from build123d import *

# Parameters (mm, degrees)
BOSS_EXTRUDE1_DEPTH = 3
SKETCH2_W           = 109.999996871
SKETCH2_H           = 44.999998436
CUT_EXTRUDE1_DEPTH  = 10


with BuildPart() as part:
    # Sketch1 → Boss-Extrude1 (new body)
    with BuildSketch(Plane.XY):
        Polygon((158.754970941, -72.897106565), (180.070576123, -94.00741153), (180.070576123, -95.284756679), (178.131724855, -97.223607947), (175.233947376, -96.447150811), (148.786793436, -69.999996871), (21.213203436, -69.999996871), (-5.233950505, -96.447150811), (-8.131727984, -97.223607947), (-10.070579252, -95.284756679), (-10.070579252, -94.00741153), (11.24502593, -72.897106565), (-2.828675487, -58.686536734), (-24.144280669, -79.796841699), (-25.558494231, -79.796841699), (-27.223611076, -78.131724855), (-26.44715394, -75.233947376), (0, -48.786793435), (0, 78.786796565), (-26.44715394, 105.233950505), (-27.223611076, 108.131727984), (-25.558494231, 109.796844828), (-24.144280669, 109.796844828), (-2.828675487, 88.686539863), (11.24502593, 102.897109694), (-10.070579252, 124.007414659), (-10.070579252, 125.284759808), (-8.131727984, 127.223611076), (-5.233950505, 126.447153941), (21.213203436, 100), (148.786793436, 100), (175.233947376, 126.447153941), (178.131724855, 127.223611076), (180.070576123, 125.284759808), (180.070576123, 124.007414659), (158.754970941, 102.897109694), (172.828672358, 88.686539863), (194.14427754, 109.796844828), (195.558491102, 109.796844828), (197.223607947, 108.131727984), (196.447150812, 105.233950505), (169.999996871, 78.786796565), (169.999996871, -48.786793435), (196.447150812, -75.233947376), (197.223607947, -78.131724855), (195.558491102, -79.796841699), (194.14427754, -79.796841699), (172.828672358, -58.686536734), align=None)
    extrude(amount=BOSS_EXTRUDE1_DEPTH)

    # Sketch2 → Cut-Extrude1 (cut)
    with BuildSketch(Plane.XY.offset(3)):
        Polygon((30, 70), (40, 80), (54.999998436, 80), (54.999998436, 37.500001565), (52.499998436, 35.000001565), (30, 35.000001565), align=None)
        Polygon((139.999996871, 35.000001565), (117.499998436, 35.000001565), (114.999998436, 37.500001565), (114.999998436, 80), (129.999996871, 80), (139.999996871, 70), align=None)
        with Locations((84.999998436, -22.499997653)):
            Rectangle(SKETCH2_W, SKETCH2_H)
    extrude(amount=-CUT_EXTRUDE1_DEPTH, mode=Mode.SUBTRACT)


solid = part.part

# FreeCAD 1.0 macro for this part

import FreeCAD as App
import Part
import Sketcher
Q = App.Units.Quantity


def add_polygon(sketch, points):
    """Adds a closed chain of lines whose ends are joined by coincident constraints."""
    first, n = sketch.GeometryCount, len(points)
    for a, b in zip(points, points[1:] + points[:1]):
        sketch.addGeometry(Part.LineSegment(App.Vector(*a, 0), App.Vector(*b, 0)), False)
    for i in range(n):
        sketch.addConstraint(Sketcher.Constraint("Coincident", first + i, 2, first + (i + 1) % n, 1))

doc = App.newDocument("Part")
body = doc.addObject("PartDesign::Body", "Body")

# Sketch on XY plane
sketch1 = body.newObject("Sketcher::SketchObject", "Sketch")
sketch1.AttachmentSupport = (doc.getObject("XY_Plane"), [""])
sketch1.MapMode = "FlatFace"
add_polygon(sketch1, [(180.070576, -94.007412), (158.754971, -72.897107), (172.828672, -58.686537), (194.144278, -79.796842), (195.558491, -79.796842), (197.223608, -78.131725), (196.447151, -75.233947), (169.999997, -48.786793), (169.999997, 78.786797), (196.447151, 105.233951), (197.223608, 108.131728), (195.558491, 109.796845), (194.144278, 109.796845), (172.828672, 88.68654), (158.754971, 102.89711), (180.070576, 124.007415), (180.070576, 125.28476), (178.131725, 127.223611), (175.233947, 126.447154), (148.786793, 100), (21.213203, 100), (-5.233951, 126.447154), (-8.131728, 127.223611), (-10.070579, 125.28476), (-10.070579, 124.007415), (11.245026, 102.89711), (-2.828675, 88.68654), (-24.144281, 109.796845), (-25.558494, 109.796845), (-27.223611, 108.131728), (-26.447154, 105.233951), (0, 78.786797), (0, -48.786793), (-26.447154, -75.233947), (-27.223611, -78.131725), (-25.558494, -79.796842), (-24.144281, -79.796842), (-2.828675, -58.686537), (11.245026, -72.897107), (-10.070579, -94.007412), (-10.070579, -95.284757), (-8.131728, -97.223608), (-5.233951, -96.447151), (21.213203, -69.999997), (148.786793, -69.999997), (175.233947, -96.447151), (178.131725, -97.223608), (180.070576, -95.284757)])  # lines 0-47
sketch1.addConstraint([
    Sketcher.Constraint("Horizontal", 3),
    Sketcher.Constraint("Vertical", 7),
    Sketcher.Constraint("Horizontal", 11),
    Sketcher.Constraint("Vertical", 15),
    Sketcher.Constraint("Horizontal", 19),
    Sketcher.Constraint("Vertical", 23),
    Sketcher.Constraint("Horizontal", 27),
    Sketcher.Constraint("Vertical", 31),
    Sketcher.Constraint("Horizontal", 35),
    Sketcher.Constraint("Vertical", 39),
    Sketcher.Constraint("Horizontal", 43),
    Sketcher.Constraint("Vertical", 47),
    Sketcher.Constraint("PointOnObject", 30, 2, -2),
    Sketcher.Constraint("Perpendicular", 0, 1),
    Sketcher.Constraint("Perpendicular", 1, 2),
    Sketcher.Constraint("Perpendicular", 4, 6),
    Sketcher.Constraint("Perpendicular", 6, 8),
    Sketcher.Constraint("Perpendicular", 8, 10),
    Sketcher.Constraint("Perpendicular", 12, 13),
    Sketcher.Constraint("Perpendicular", 13, 14),
    Sketcher.Constraint("Parallel", 10, 16),
    Sketcher.Constraint("Perpendicular", 5, 17),
    Sketcher.Constraint("Perpendicular", 16, 18),
    Sketcher.Constraint("Perpendicular", 18, 20),
    Sketcher.Constraint("Perpendicular", 9, 21),
    Sketcher.Constraint("Perpendicular", 20, 22),
    Sketcher.Constraint("Parallel", 2, 24),
    Sketcher.Constraint("Perpendicular", 24, 25),
    Sketcher.Constraint("Perpendicular", 25, 26),
    Sketcher.Constraint("Parallel", 22, 28),
    Sketcher.Constraint("Perpendicular", 17, 29),
    Sketcher.Constraint("Perpendicular", 28, 30),
    Sketcher.Constraint("Perpendicular", 30, 32),
    Sketcher.Constraint("Perpendicular", 21, 33),
    Sketcher.Constraint("Perpendicular", 32, 34),
    Sketcher.Constraint("Parallel", 14, 36),
    Sketcher.Constraint("Perpendicular", 36, 37),
    Sketcher.Constraint("Perpendicular", 37, 38),
    Sketcher.Constraint("Parallel", 34, 40),
    Sketcher.Constraint("Perpendicular", 29, 41),
    Sketcher.Constraint("Perpendicular", 40, 42),
    Sketcher.Constraint("Perpendicular", 42, 44),
    Sketcher.Constraint("Perpendicular", 33, 45),
    Sketcher.Constraint("Perpendicular", 44, 46),
    Sketcher.Constraint("Horizontal", 17, 2, 20, 2),
    Sketcher.Constraint("Horizontal", 16, 2, 21, 2),
    Sketcher.Constraint("Horizontal", 15, 2, 22, 2),
    Sketcher.Constraint("Horizontal", 14, 2, 23, 2),
    Sketcher.Constraint("Horizontal", 13, 2, 24, 2),
    Sketcher.Constraint("Horizontal", 12, 2, 25, 2),
    Sketcher.Constraint("Horizontal", 11, 2, 26, 2),
    Sketcher.Constraint("Horizontal", 9, 2, 28, 2),
    Sketcher.Constraint("Horizontal", 8, 2, 29, 2),
    Sketcher.Constraint("Horizontal", 7, 2, 30, 2),
    Sketcher.Constraint("Horizontal", 6, 2, 31, 2),
    Sketcher.Constraint("Horizontal", 5, 2, 32, 2),
    Sketcher.Constraint("Horizontal", 4, 2, 33, 2),
    Sketcher.Constraint("Horizontal", 3, 2, 34, 2),
    Sketcher.Constraint("Horizontal", 1, 2, 36, 2),
    Sketcher.Constraint("Horizontal", 0, 2, 37, 2),
    Sketcher.Constraint("Horizontal", 41, 2, 44, 2),
    Sketcher.Constraint("Horizontal", 40, 2, 45, 2),
    Sketcher.Constraint("Horizontal", 39, 2, 46, 2),
    Sketcher.Constraint("Horizontal", 38, 2, 47, 2),
    Sketcher.Constraint("Vertical", 5, 2, 8, 2),
    Sketcher.Constraint("Vertical", 4, 2, 9, 2),
    Sketcher.Constraint("Vertical", 3, 2, 10, 2),
    Sketcher.Constraint("Vertical", 2, 2, 11, 2),
    Sketcher.Constraint("Vertical", 1, 2, 12, 2),
    Sketcher.Constraint("Vertical", 0, 2, 13, 2),
    Sketcher.Constraint("Vertical", 29, 2, 32, 2),
    Sketcher.Constraint("Vertical", 28, 2, 33, 2),
    Sketcher.Constraint("Vertical", 26, 2, 35, 2),
    Sketcher.Constraint("Vertical", 25, 2, 36, 2),
    Sketcher.Constraint("Vertical", 23, 2, 38, 2),
    Sketcher.Constraint("Vertical", 21, 2, 40, 2),
    Sketcher.Constraint("Vertical", 20, 2, 41, 2),
    Sketcher.Constraint("Vertical", 19, 2, 42, 2),
    Sketcher.Constraint("Equal", 11, 27),
    Sketcher.Constraint("Equal", 43, 7),
    Sketcher.Constraint("Equal", 23, 39),
    Sketcher.Constraint("Equal", 0, 2),
    Sketcher.Constraint("Equal", 9, 17),
    Sketcher.Constraint("Equal", 8, 18),
    Sketcher.Constraint("Angle", 5, Q("105 deg")),
    Sketcher.Constraint("Distance", 0, Q("30 mm")),
    Sketcher.Constraint("Distance", 5, Q("3 mm")),
    Sketcher.Constraint("DistanceY", -1, 1, 18, 2, Q("100 mm")),
    Sketcher.Constraint("DistanceX", 19, 2, 19, 1, Q("127.57359 mm")),
    Sketcher.Constraint("DistanceX", 0, 2, 1, 2, Q("14.073701 mm")),
    Sketcher.Constraint("DistanceX", 21, 2, 13, 2, Q("166.886699 mm")),
    Sketcher.Constraint("DistanceY", 13, 2, 21, 2, Q("24.326501 mm")),
    Sketcher.Constraint("Distance", 4, Q("2.354831 mm")),
    Sketcher.Constraint("Distance", 16, Q("2.74195 mm")),
    Sketcher.Constraint("DistanceX", 3, 1, 3, 2, Q("1.414214 mm")),
    Sketcher.Constraint("DistanceY", 15, 1, 15, 2, Q("1.277345 mm")),
])
pad1 = body.newObject("PartDesign::Pad", "Pad")
pad1.Profile = sketch1
pad1.Length = 3

# Sketch on XY plane
sketch2 = body.newObject("Sketcher::SketchObject", "Sketch001")
sketch2.AttachmentSupport = (doc.getObject("XY_Plane"), [""])
sketch2.MapMode = "FlatFace"
sketch2.AttachmentOffset = App.Placement(App.Vector(0, 0, 3), App.Rotation())
add_polygon(sketch2, [(40, 80), (30, 70), (30, 35.000002), (52.499998, 35.000002), (54.999998, 37.500002), (54.999998, 80)])  # lines 0-5
add_polygon(sketch2, [(117.499998, 35.000002), (139.999997, 35.000002), (139.999997, 70), (129.999997, 80), (114.999998, 80), (114.999998, 37.500002)])  # lines 6-11
add_polygon(sketch2, [(30, 0.000002), (30, -44.999997), (139.999997, -44.999997), (139.999997, 0.000002)])  # lines 12-15
sketch2.addConstraint([
    Sketcher.Constraint("Vertical", 1),
    Sketcher.Constraint("Horizontal", 2),
    Sketcher.Constraint("Vertical", 4),
    Sketcher.Constraint("Horizontal", 5),
    Sketcher.Constraint("Horizontal", 6),
    Sketcher.Constraint("Vertical", 7),
    Sketcher.Constraint("Horizontal", 9),
    Sketcher.Constraint("Vertical", 10),
    Sketcher.Constraint("Vertical", 12),
    Sketcher.Constraint("Horizontal", 13),
    Sketcher.Constraint("Vertical", 14),
    Sketcher.Constraint("Horizontal", 15),
    Sketcher.Constraint("PointOnObject", 14, 2, -1),
    Sketcher.Constraint("Parallel", 0, 3),
    Sketcher.Constraint("Perpendicular", 3, 8),
    Sketcher.Constraint("Parallel", 8, 11),
    Sketcher.Constraint("Horizontal", 2, 2, 6, 2),
    Sketcher.Constraint("Horizontal", 0, 2, 7, 2),
    Sketcher.Constraint("Horizontal", 5, 2, 8, 2),
    Sketcher.Constraint("Horizontal", 3, 2, 10, 2),
    Sketcher.Constraint("Vertical", 1, 2, 12, 2),
    Sketcher.Constraint("Vertical", 7, 2, 13, 2),
    Sketcher.Constraint("Equal", 2, 6),
    Sketcher.Constraint("Equal", 5, 9),
    Sketcher.Constraint("DistanceX", 5, 2, 5, 1, Q("14.999998 mm")),
    Sketcher.Constraint("DistanceY", 1, 2, 1, 1, Q("34.999998 mm")),
    Sketcher.Constraint("DistanceY", 12, 2, 12, 1, Q("44.999998 mm")),
    Sketcher.Constraint("DistanceX", 2, 1, 2, 2, Q("22.499998 mm")),
    Sketcher.Constraint("DistanceX", -1, 1, 0, 2, Q("30 mm")),
    Sketcher.Constraint("DistanceY", -1, 1, 0, 2, Q("70 mm")),
    Sketcher.Constraint("DistanceX", -1, 1, 3, 2, Q("54.999998 mm")),
    Sketcher.Constraint("DistanceX", -1, 1, 9, 2, Q("114.999998 mm")),
])
pocket1 = body.newObject("PartDesign::Pocket", "Pocket")
pocket1.Profile = sketch2
pocket1.Length = 10

doc.recompute()
